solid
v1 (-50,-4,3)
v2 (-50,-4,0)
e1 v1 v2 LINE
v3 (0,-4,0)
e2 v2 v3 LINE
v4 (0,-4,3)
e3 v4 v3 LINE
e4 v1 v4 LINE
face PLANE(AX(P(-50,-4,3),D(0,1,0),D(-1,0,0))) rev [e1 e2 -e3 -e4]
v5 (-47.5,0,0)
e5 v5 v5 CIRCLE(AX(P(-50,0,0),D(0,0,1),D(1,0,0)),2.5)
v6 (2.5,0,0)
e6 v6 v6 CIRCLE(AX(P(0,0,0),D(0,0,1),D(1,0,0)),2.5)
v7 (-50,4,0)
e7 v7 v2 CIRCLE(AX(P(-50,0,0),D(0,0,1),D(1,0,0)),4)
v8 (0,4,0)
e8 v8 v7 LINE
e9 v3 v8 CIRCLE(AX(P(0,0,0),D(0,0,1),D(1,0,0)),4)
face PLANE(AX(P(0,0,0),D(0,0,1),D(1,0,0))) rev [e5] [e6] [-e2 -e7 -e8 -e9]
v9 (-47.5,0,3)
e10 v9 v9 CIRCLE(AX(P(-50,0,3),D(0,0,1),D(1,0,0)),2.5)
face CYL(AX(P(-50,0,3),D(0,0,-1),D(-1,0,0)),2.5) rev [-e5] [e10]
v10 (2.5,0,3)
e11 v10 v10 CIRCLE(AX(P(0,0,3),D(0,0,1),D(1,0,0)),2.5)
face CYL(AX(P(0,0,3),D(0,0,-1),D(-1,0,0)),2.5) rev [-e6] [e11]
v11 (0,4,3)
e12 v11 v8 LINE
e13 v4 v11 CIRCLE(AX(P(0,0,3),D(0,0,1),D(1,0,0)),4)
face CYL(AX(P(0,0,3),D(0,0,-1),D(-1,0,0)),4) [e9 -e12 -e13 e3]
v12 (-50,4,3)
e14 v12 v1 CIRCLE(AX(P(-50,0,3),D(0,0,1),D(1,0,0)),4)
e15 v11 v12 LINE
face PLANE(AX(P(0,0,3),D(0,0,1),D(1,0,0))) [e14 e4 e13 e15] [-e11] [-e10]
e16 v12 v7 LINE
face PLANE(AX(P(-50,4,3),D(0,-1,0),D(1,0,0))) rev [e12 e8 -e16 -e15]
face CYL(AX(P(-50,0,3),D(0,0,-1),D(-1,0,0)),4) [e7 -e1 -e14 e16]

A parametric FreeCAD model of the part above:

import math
import FreeCAD as App
import Part
import Sketcher
Q = App.Units.Quantity

doc = App.newDocument("Part")
body = doc.addObject("PartDesign::Body", "Body")

# Sketch on XY plane
sketch1 = body.newObject("Sketcher::SketchObject", "Sketch")
sketch1.AttachmentSupport = (doc.getObject("XY_Plane"), [""])
sketch1.MapMode = "FlatFace"
sketch1.addGeometry(Part.LineSegment(App.Vector(0, 4, 0), App.Vector(-50, 4, 0)), False)
sketch1.addGeometry(Part.ArcOfCircle(Part.Circle(App.Vector(-50, 0, 0), App.Vector(0, 0, 1), 4), math.radians(90), math.radians(270)), False)
sketch1.addGeometry(Part.LineSegment(App.Vector(-50, -4, 0), App.Vector(0, -4, 0)), False)
sketch1.addGeometry(Part.ArcOfCircle(Part.Circle(App.Vector(0, 0, 0), App.Vector(0, 0, 1), 4), math.radians(-90), math.radians(90)), False)
sketch1.addGeometry(Part.Circle(App.Vector(0, 0, 0), App.Vector(0, 0, 1), 2.5), False)
sketch1.addGeometry(Part.Circle(App.Vector(-50, 0, 0), App.Vector(0, 0, 1), 2.5), False)
sketch1.addConstraint(Sketcher.Constraint("Tangent", 0, 2, 1, 1))
sketch1.addConstraint(Sketcher.Constraint("Tangent", 1, 2, 2, 1))
sketch1.addConstraint(Sketcher.Constraint("Tangent", 2, 2, 3, 1))
sketch1.addConstraint(Sketcher.Constraint("Tangent", 3, 2, 0, 1))
sketch1.addConstraint(Sketcher.Constraint("Horizontal", 0))
sketch1.addConstraint(Sketcher.Constraint("Horizontal", 2))
sketch1.addConstraint(Sketcher.Constraint("Coincident", 3, 3, -1, 1))
sketch1.addConstraint(Sketcher.Constraint("Coincident", 4, 3, -1, 1))
sketch1.addConstraint(Sketcher.Constraint("Coincident", 5, 3, 1, 3))
sketch1.addConstraint(Sketcher.Constraint("Equal", 4, 5))
sketch1.addConstraint(Sketcher.Constraint("Diameter", 4, Q("5 mm")))
sketch1.addConstraint(Sketcher.Constraint("Radius", 1, Q("4 mm")))
sketch1.addConstraint(Sketcher.Constraint("DistanceX", 0, 2, 0, 1, Q("50 mm")))
pad1 = body.newObject("PartDesign::Pad", "Pad")
pad1.Profile = sketch1
pad1.Length = 3

doc.recompute()
